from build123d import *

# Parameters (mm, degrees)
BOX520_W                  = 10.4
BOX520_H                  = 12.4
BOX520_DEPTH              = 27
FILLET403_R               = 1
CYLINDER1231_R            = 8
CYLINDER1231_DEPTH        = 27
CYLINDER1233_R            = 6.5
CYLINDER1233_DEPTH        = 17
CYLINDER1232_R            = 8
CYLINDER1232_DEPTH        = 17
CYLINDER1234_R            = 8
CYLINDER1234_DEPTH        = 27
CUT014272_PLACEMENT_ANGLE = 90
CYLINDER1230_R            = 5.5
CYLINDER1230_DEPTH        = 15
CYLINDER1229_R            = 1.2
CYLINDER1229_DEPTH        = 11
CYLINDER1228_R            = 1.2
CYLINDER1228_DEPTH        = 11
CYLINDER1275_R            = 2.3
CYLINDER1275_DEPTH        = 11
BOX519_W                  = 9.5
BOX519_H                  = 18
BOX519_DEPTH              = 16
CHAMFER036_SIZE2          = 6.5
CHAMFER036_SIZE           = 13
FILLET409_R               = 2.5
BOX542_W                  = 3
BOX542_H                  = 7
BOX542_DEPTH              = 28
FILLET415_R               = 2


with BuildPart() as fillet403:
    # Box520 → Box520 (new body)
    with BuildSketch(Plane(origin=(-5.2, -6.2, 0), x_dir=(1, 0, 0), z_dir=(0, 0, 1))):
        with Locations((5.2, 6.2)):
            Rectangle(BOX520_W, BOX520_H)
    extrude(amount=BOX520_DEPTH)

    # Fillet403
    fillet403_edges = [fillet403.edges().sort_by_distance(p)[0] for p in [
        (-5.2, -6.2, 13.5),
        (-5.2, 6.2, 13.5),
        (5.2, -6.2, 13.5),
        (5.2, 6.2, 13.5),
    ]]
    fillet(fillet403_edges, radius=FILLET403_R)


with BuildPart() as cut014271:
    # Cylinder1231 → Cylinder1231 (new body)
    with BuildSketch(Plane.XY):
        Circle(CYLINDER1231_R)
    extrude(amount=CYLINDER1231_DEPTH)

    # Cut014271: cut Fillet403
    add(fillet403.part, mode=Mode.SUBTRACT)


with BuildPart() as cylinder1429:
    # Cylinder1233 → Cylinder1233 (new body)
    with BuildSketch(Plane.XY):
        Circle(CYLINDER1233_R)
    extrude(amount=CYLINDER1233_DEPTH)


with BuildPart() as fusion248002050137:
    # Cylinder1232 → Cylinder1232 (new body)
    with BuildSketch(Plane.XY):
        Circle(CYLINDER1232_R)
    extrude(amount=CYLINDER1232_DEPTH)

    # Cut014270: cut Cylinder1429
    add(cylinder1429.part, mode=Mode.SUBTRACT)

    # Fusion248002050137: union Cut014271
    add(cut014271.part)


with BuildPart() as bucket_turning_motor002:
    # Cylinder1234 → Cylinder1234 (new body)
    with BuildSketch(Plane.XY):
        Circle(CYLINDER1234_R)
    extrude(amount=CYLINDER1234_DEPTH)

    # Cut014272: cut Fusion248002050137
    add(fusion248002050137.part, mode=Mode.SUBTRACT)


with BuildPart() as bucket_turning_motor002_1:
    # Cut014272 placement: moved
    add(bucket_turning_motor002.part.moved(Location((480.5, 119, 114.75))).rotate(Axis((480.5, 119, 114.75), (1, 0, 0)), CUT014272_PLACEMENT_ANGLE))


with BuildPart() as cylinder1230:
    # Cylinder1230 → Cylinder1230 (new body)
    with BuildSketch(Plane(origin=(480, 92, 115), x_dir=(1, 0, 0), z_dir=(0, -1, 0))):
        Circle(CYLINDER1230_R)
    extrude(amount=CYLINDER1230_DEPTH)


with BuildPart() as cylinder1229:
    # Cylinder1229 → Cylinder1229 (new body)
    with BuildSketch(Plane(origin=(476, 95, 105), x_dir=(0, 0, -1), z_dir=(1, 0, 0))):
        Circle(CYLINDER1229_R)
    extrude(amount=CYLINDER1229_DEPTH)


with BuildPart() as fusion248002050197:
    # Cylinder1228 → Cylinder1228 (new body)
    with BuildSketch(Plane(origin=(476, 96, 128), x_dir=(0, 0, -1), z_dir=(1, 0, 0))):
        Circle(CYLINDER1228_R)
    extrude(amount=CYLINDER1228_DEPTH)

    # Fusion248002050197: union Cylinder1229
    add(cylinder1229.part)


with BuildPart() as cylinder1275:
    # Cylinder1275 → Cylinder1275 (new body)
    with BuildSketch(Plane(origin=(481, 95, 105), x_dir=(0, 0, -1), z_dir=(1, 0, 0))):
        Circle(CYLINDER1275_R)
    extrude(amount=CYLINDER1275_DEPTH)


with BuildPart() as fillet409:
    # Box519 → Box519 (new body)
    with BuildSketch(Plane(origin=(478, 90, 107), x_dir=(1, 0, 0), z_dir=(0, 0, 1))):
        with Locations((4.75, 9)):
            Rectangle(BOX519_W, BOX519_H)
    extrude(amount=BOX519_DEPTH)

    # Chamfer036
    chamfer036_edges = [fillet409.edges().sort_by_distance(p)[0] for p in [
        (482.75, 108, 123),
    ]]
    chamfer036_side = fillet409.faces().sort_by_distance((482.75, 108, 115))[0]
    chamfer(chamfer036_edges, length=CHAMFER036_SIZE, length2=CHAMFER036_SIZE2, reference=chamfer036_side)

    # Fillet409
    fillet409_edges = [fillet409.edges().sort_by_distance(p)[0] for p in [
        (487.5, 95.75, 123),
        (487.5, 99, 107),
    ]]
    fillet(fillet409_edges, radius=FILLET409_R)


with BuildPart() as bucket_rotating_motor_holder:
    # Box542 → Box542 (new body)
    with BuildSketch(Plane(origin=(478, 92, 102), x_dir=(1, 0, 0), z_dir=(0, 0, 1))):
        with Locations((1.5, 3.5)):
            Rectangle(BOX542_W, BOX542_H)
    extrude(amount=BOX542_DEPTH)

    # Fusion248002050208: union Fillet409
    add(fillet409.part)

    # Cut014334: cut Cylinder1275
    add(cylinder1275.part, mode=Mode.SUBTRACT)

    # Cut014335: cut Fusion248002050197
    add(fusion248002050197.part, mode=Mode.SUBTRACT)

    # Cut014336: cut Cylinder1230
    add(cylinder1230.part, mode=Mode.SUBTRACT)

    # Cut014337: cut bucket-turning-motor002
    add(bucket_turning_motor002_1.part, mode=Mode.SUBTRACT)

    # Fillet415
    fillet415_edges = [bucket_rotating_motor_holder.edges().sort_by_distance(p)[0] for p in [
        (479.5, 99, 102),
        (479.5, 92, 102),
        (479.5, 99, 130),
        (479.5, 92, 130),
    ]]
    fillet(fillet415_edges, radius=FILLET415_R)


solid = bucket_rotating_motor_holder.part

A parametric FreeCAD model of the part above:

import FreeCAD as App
import Part
import Sketcher
from FreeCAD import Vector


def edges_at(feature, points):
    """Names of the edges that pass closest to the given points."""
    edges = feature.Shape.Edges
    near = lambda p: min(range(len(edges)), key=lambda i: edges[i].distToShape(Part.Vertex(*p))[0])
    return sorted({f"Edge{near(p) + 1}" for p in points})


def add_polygon(sketch, points):
    """Adds a closed chain of lines whose ends are joined by coincident constraints."""
    first, n = sketch.GeometryCount, len(points)
    for a, b in zip(points, points[1:] + points[:1]):
        sketch.addGeometry(Part.LineSegment(App.Vector(*a, 0), App.Vector(*b, 0)), False)
    for i in range(n):
        sketch.addConstraint(Sketcher.Constraint("Coincident", first + i, 2, first + (i + 1) % n, 1))

doc = App.newDocument("Part")
body = doc.addObject("PartDesign::Body", "Body")

# Sketch on XY plane
sketch1 = doc.addObject("Sketcher::SketchObject", "Sketch")
body.addObject(sketch1)
sketch1.AttachmentSupport = (doc.XY_Plane, [""])
sketch1.MapMode = "FlatFace"
add_polygon(sketch1, [(-5, 6), (-5, -6), (5, -6), (5, 6)])  # lines 0-3
sketch1.addConstraint(Sketcher.Constraint("Vertical", 0))
sketch1.addConstraint(Sketcher.Constraint("Horizontal", 1))
sketch1.addConstraint(Sketcher.Constraint("Vertical", 2))
sketch1.addConstraint(Sketcher.Constraint("Horizontal", 3))
sketch1.addConstraint(Sketcher.Constraint("Symmetric", 0, 2, 2, 2, -1, 1))
sketch1.addConstraint(Sketcher.Constraint("DistanceX", 1, 1, 1, 2, 10.4))
sketch1.addConstraint(Sketcher.Constraint("DistanceY", 0, 2, 0, 1, 12.4))
pad1 = doc.addObject("PartDesign::Pad", "Pad")
body.addObject(pad1)
pad1.Profile = sketch1
pad1.Length = 27
doc.recompute()

fillet = doc.addObject("PartDesign::Fillet", "Fillet")
body.addObject(fillet)
fillet.Base = (pad1, edges_at(pad1, [
    (-5.2, -6.2, 13.5),
    (-5.2, 6.2, 13.5),
    (5.2, -6.2, 13.5),
    (5.2, 6.2, 13.5),
]))
fillet.Radius = 1
body2 = doc.addObject("PartDesign::Body", "Body001")

# Sketch on XY plane
sketch2 = doc.addObject("Sketcher::SketchObject", "Sketch001")
body2.addObject(sketch2)
sketch2.AttachmentSupport = (doc.getObject("XY_Plane001"), [""])
sketch2.MapMode = "FlatFace"
sketch2.addGeometry(Part.Circle(Vector(0, 0, 0), Vector(0, 0, 1), 8), False)
sketch2.addConstraint(Sketcher.Constraint("Coincident", 0, 3, -1, 1))
sketch2.addConstraint(Sketcher.Constraint("Diameter", 0, 16.0))
pad2 = doc.addObject("PartDesign::Pad", "Pad001")
body2.addObject(pad2)
pad2.Profile = sketch2
pad2.Length = 27
doc.recompute()

boolean = doc.addObject("PartDesign::Boolean", "Boolean")
body2.addObject(boolean)
boolean.Type = "Cut"
boolean.addObjects([body])
body3 = doc.addObject("PartDesign::Body", "Body002")

# Sketch on XY plane
sketch3 = doc.addObject("Sketcher::SketchObject", "Sketch002")
body3.addObject(sketch3)
sketch3.AttachmentSupport = (doc.getObject("XY_Plane002"), [""])
sketch3.MapMode = "FlatFace"
sketch3.addGeometry(Part.Circle(Vector(0, 0, 0), Vector(0, 0, 1), 6), False)
sketch3.addConstraint(Sketcher.Constraint("Coincident", 0, 3, -1, 1))
sketch3.addConstraint(Sketcher.Constraint("Diameter", 0, 13.0))
pad3 = doc.addObject("PartDesign::Pad", "Pad002")
body3.addObject(pad3)
pad3.Profile = sketch3
pad3.Length = 17
body4 = doc.addObject("PartDesign::Body", "Body003")

# Sketch on XY plane
sketch4 = doc.addObject("Sketcher::SketchObject", "Sketch003")
body4.addObject(sketch4)
sketch4.AttachmentSupport = (doc.getObject("XY_Plane003"), [""])
sketch4.MapMode = "FlatFace"
sketch4.addGeometry(Part.Circle(Vector(0, 0, 0), Vector(0, 0, 1), 8), False)
sketch4.addConstraint(Sketcher.Constraint("Coincident", 0, 3, -1, 1))
sketch4.addConstraint(Sketcher.Constraint("Diameter", 0, 16.0))
pad4 = doc.addObject("PartDesign::Pad", "Pad003")
body4.addObject(pad4)
pad4.Profile = sketch4
pad4.Length = 17
doc.recompute()

boolean2 = doc.addObject("PartDesign::Boolean", "Boolean001")
body4.addObject(boolean2)
boolean2.Type = "Cut"
boolean2.addObjects([body3])
doc.recompute()

boolean3 = doc.addObject("PartDesign::Boolean", "Boolean002")
body4.addObject(boolean3)
boolean3.Type = "Fuse"
boolean3.addObjects([body2])
body5 = doc.addObject("PartDesign::Body", "Body004")

# Sketch on XY plane
sketch5 = doc.addObject("Sketcher::SketchObject", "Sketch004")
body5.addObject(sketch5)
sketch5.AttachmentSupport = (doc.getObject("XY_Plane004"), [""])
sketch5.MapMode = "FlatFace"
sketch5.addGeometry(Part.Circle(Vector(0, 0, 0), Vector(0, 0, 1), 8), False)
sketch5.addConstraint(Sketcher.Constraint("Coincident", 0, 3, -1, 1))
sketch5.addConstraint(Sketcher.Constraint("Diameter", 0, 16.0))
pad5 = doc.addObject("PartDesign::Pad", "Pad004")
body5.addObject(pad5)
pad5.Profile = sketch5
pad5.Length = 27
doc.recompute()

boolean4 = doc.addObject("PartDesign::Boolean", "Boolean003")
body5.addObject(boolean4)
boolean4.Type = "Cut"
boolean4.addObjects([body4])
body6 = doc.addObject("PartDesign::Body", "Body005")
doc.recompute()

body5.Placement = App.Placement(Vector(480.5, 119, 114.75), App.Rotation(Vector(1, 0, 0), 90))
boolean5 = doc.addObject("PartDesign::Boolean", "Boolean004")
body6.addObject(boolean5)
boolean5.Type = "Fuse"
boolean5.addObjects([body5])
body7 = doc.addObject("PartDesign::Body", "Body006")

# Sketch on XZ plane
sketch6 = doc.addObject("Sketcher::SketchObject", "Sketch005")
body7.addObject(sketch6)
sketch6.AttachmentSupport = (doc.getObject("XZ_Plane006"), [""])
sketch6.MapMode = "FlatFace"
sketch6.AttachmentOffset = App.Placement(Vector(0, 0, -92), App.Rotation())
sketch6.addGeometry(Part.Circle(Vector(480, 115, 0), Vector(0, 0, 1), 6), False)
sketch6.addConstraint(Sketcher.Constraint("Diameter", 0, 11.0))
sketch6.addConstraint(Sketcher.Constraint("DistanceX", -1, 1, 0, 3, 480.0))
sketch6.addConstraint(Sketcher.Constraint("DistanceY", -1, 1, 0, 3, 115.0))
pad6 = doc.addObject("PartDesign::Pad", "Pad005")
body7.addObject(pad6)
pad6.Profile = sketch6
pad6.Length = 15
body8 = doc.addObject("PartDesign::Body", "Body007")

# Sketch on YZ plane
sketch7 = doc.addObject("Sketcher::SketchObject", "Sketch006")
body8.addObject(sketch7)
sketch7.AttachmentSupport = (doc.getObject("YZ_Plane007"), [""])
sketch7.MapMode = "FlatFace"
sketch7.AttachmentOffset = App.Placement(Vector(0, 0, 476), App.Rotation())
sketch7.addGeometry(Part.Circle(Vector(95, 105, 0), Vector(0, 0, 1), 1.2), False)
sketch7.addConstraint(Sketcher.Constraint("Diameter", 0, 2.4))
sketch7.addConstraint(Sketcher.Constraint("DistanceX", -1, 1, 0, 3, 95.0))
sketch7.addConstraint(Sketcher.Constraint("DistanceY", -1, 1, 0, 3, 105.0))
pad7 = doc.addObject("PartDesign::Pad", "Pad006")
body8.addObject(pad7)
pad7.Profile = sketch7
pad7.Length = 11
body9 = doc.addObject("PartDesign::Body", "Body008")
body9.AllowCompound = True

# Sketch on YZ plane
sketch8 = doc.addObject("Sketcher::SketchObject", "Sketch007")
body9.addObject(sketch8)
sketch8.AttachmentSupport = (doc.getObject("YZ_Plane008"), [""])
sketch8.MapMode = "FlatFace"
sketch8.AttachmentOffset = App.Placement(Vector(0, 0, 476), App.Rotation())
sketch8.addGeometry(Part.Circle(Vector(96, 128, 0), Vector(0, 0, 1), 1.2), False)
sketch8.addConstraint(Sketcher.Constraint("Diameter", 0, 2.4))
sketch8.addConstraint(Sketcher.Constraint("DistanceX", -1, 1, 0, 3, 96.0))
sketch8.addConstraint(Sketcher.Constraint("DistanceY", -1, 1, 0, 3, 128.0))
pad8 = doc.addObject("PartDesign::Pad", "Pad007")
body9.addObject(pad8)
pad8.Profile = sketch8
pad8.Length = 11
doc.recompute()

boolean6 = doc.addObject("PartDesign::Boolean", "Boolean005")
body9.addObject(boolean6)
boolean6.Type = "Fuse"
boolean6.addObjects([body8])
body10 = doc.addObject("PartDesign::Body", "Body009")

# Sketch on YZ plane
sketch9 = doc.addObject("Sketcher::SketchObject", "Sketch008")
body10.addObject(sketch9)
sketch9.AttachmentSupport = (doc.getObject("YZ_Plane009"), [""])
sketch9.MapMode = "FlatFace"
sketch9.AttachmentOffset = App.Placement(Vector(0, 0, 481), App.Rotation())
sketch9.addGeometry(Part.Circle(Vector(95, 105, 0), Vector(0, 0, 1), 2.3), False)
sketch9.addConstraint(Sketcher.Constraint("Diameter", 0, 4.6))
sketch9.addConstraint(Sketcher.Constraint("DistanceX", -1, 1, 0, 3, 95.0))
sketch9.addConstraint(Sketcher.Constraint("DistanceY", -1, 1, 0, 3, 105.0))
pad9 = doc.addObject("PartDesign::Pad", "Pad008")
body10.addObject(pad9)
pad9.Profile = sketch9
pad9.Length = 11
body11 = doc.addObject("PartDesign::Body", "Body010")

# Sketch on XY plane
sketch10 = doc.addObject("Sketcher::SketchObject", "Sketch009")
body11.addObject(sketch10)
sketch10.AttachmentSupport = (doc.getObject("XY_Plane010"), [""])
sketch10.MapMode = "FlatFace"
sketch10.AttachmentOffset = App.Placement(Vector(0, 0, 107), App.Rotation())
add_polygon(sketch10, [(478, 108), (478, 90), (488, 90), (488, 108)])  # lines 0-3
sketch10.addConstraint(Sketcher.Constraint("Vertical", 0))
sketch10.addConstraint(Sketcher.Constraint("Horizontal", 1))
sketch10.addConstraint(Sketcher.Constraint("Vertical", 2))
sketch10.addConstraint(Sketcher.Constraint("Horizontal", 3))
sketch10.addConstraint(Sketcher.Constraint("DistanceY", 0, 2, 0, 1, 18.0))
sketch10.addConstraint(Sketcher.Constraint("DistanceX", 1, 1, 1, 2, 9.5))
sketch10.addConstraint(Sketcher.Constraint("DistanceX", -1, 1, 0, 2, 478.0))
sketch10.addConstraint(Sketcher.Constraint("DistanceY", -1, 1, 0, 2, 90.0))
pad10 = doc.addObject("PartDesign::Pad", "Pad009")
body11.addObject(pad10)
pad10.Profile = sketch10
pad10.Length = 16
doc.recompute()

chamfer = doc.addObject("PartDesign::Chamfer", "Chamfer")
body11.addObject(chamfer)
chamfer.Base = (pad10, edges_at(pad10, [(482.75, 108, 123)]))
chamfer.ChamferType = "Two distances"
chamfer.Size = 13
chamfer.Size2 = 6.5
doc.recompute()

fillet2 = doc.addObject("PartDesign::Fillet", "Fillet001")
body11.addObject(fillet2)
fillet2.Base = (chamfer, edges_at(chamfer, [(487.5, 95.75, 123), (487.5, 99, 107)]))
fillet2.Radius = 2.5
body12 = doc.addObject("PartDesign::Body", "Body011")

# Sketch on XY plane
sketch11 = doc.addObject("Sketcher::SketchObject", "Sketch010")
body12.addObject(sketch11)
sketch11.AttachmentSupport = (doc.getObject("XY_Plane011"), [""])
sketch11.MapMode = "FlatFace"
sketch11.AttachmentOffset = App.Placement(Vector(0, 0, 102), App.Rotation())
add_polygon(sketch11, [(478, 99), (478, 92), (481, 92), (481, 99)])  # lines 0-3
sketch11.addConstraint(Sketcher.Constraint("Vertical", 0))
sketch11.addConstraint(Sketcher.Constraint("Horizontal", 1))
sketch11.addConstraint(Sketcher.Constraint("Vertical", 2))
sketch11.addConstraint(Sketcher.Constraint("Horizontal", 3))
sketch11.addConstraint(Sketcher.Constraint("DistanceX", 1, 1, 1, 2, 3.0))
sketch11.addConstraint(Sketcher.Constraint("DistanceY", 0, 2, 0, 1, 7.0))
sketch11.addConstraint(Sketcher.Constraint("DistanceX", -1, 1, 0, 2, 478.0))
sketch11.addConstraint(Sketcher.Constraint("DistanceY", -1, 1, 0, 2, 92.0))
pad11 = doc.addObject("PartDesign::Pad", "Pad010")
body12.addObject(pad11)
pad11.Profile = sketch11
pad11.Length = 28
doc.recompute()

boolean7 = doc.addObject("PartDesign::Boolean", "Boolean006")
body12.addObject(boolean7)
boolean7.Type = "Fuse"
boolean7.addObjects([body11])
doc.recompute()

boolean8 = doc.addObject("PartDesign::Boolean", "Boolean007")
body12.addObject(boolean8)
boolean8.Type = "Cut"
boolean8.addObjects([body10])
doc.recompute()

boolean9 = doc.addObject("PartDesign::Boolean", "Boolean008")
body12.addObject(boolean9)
boolean9.Type = "Cut"
boolean9.addObjects([body9])
doc.recompute()

boolean10 = doc.addObject("PartDesign::Boolean", "Boolean009")
body12.addObject(boolean10)
boolean10.Type = "Cut"
boolean10.addObjects([body7])
doc.recompute()

boolean11 = doc.addObject("PartDesign::Boolean", "Boolean010")
body12.addObject(boolean11)
boolean11.Type = "Cut"
boolean11.addObjects([body6])
doc.recompute()

fillet3 = doc.addObject("PartDesign::Fillet", "Fillet002")
body12.addObject(fillet3)
fillet3.Base = (boolean11, edges_at(boolean11, [
    (479.5, 99, 102),
    (479.5, 92, 102),
    (479.5, 99, 130),
    (479.5, 92, 130),
]))
fillet3.Radius = 2

doc.recompute()
